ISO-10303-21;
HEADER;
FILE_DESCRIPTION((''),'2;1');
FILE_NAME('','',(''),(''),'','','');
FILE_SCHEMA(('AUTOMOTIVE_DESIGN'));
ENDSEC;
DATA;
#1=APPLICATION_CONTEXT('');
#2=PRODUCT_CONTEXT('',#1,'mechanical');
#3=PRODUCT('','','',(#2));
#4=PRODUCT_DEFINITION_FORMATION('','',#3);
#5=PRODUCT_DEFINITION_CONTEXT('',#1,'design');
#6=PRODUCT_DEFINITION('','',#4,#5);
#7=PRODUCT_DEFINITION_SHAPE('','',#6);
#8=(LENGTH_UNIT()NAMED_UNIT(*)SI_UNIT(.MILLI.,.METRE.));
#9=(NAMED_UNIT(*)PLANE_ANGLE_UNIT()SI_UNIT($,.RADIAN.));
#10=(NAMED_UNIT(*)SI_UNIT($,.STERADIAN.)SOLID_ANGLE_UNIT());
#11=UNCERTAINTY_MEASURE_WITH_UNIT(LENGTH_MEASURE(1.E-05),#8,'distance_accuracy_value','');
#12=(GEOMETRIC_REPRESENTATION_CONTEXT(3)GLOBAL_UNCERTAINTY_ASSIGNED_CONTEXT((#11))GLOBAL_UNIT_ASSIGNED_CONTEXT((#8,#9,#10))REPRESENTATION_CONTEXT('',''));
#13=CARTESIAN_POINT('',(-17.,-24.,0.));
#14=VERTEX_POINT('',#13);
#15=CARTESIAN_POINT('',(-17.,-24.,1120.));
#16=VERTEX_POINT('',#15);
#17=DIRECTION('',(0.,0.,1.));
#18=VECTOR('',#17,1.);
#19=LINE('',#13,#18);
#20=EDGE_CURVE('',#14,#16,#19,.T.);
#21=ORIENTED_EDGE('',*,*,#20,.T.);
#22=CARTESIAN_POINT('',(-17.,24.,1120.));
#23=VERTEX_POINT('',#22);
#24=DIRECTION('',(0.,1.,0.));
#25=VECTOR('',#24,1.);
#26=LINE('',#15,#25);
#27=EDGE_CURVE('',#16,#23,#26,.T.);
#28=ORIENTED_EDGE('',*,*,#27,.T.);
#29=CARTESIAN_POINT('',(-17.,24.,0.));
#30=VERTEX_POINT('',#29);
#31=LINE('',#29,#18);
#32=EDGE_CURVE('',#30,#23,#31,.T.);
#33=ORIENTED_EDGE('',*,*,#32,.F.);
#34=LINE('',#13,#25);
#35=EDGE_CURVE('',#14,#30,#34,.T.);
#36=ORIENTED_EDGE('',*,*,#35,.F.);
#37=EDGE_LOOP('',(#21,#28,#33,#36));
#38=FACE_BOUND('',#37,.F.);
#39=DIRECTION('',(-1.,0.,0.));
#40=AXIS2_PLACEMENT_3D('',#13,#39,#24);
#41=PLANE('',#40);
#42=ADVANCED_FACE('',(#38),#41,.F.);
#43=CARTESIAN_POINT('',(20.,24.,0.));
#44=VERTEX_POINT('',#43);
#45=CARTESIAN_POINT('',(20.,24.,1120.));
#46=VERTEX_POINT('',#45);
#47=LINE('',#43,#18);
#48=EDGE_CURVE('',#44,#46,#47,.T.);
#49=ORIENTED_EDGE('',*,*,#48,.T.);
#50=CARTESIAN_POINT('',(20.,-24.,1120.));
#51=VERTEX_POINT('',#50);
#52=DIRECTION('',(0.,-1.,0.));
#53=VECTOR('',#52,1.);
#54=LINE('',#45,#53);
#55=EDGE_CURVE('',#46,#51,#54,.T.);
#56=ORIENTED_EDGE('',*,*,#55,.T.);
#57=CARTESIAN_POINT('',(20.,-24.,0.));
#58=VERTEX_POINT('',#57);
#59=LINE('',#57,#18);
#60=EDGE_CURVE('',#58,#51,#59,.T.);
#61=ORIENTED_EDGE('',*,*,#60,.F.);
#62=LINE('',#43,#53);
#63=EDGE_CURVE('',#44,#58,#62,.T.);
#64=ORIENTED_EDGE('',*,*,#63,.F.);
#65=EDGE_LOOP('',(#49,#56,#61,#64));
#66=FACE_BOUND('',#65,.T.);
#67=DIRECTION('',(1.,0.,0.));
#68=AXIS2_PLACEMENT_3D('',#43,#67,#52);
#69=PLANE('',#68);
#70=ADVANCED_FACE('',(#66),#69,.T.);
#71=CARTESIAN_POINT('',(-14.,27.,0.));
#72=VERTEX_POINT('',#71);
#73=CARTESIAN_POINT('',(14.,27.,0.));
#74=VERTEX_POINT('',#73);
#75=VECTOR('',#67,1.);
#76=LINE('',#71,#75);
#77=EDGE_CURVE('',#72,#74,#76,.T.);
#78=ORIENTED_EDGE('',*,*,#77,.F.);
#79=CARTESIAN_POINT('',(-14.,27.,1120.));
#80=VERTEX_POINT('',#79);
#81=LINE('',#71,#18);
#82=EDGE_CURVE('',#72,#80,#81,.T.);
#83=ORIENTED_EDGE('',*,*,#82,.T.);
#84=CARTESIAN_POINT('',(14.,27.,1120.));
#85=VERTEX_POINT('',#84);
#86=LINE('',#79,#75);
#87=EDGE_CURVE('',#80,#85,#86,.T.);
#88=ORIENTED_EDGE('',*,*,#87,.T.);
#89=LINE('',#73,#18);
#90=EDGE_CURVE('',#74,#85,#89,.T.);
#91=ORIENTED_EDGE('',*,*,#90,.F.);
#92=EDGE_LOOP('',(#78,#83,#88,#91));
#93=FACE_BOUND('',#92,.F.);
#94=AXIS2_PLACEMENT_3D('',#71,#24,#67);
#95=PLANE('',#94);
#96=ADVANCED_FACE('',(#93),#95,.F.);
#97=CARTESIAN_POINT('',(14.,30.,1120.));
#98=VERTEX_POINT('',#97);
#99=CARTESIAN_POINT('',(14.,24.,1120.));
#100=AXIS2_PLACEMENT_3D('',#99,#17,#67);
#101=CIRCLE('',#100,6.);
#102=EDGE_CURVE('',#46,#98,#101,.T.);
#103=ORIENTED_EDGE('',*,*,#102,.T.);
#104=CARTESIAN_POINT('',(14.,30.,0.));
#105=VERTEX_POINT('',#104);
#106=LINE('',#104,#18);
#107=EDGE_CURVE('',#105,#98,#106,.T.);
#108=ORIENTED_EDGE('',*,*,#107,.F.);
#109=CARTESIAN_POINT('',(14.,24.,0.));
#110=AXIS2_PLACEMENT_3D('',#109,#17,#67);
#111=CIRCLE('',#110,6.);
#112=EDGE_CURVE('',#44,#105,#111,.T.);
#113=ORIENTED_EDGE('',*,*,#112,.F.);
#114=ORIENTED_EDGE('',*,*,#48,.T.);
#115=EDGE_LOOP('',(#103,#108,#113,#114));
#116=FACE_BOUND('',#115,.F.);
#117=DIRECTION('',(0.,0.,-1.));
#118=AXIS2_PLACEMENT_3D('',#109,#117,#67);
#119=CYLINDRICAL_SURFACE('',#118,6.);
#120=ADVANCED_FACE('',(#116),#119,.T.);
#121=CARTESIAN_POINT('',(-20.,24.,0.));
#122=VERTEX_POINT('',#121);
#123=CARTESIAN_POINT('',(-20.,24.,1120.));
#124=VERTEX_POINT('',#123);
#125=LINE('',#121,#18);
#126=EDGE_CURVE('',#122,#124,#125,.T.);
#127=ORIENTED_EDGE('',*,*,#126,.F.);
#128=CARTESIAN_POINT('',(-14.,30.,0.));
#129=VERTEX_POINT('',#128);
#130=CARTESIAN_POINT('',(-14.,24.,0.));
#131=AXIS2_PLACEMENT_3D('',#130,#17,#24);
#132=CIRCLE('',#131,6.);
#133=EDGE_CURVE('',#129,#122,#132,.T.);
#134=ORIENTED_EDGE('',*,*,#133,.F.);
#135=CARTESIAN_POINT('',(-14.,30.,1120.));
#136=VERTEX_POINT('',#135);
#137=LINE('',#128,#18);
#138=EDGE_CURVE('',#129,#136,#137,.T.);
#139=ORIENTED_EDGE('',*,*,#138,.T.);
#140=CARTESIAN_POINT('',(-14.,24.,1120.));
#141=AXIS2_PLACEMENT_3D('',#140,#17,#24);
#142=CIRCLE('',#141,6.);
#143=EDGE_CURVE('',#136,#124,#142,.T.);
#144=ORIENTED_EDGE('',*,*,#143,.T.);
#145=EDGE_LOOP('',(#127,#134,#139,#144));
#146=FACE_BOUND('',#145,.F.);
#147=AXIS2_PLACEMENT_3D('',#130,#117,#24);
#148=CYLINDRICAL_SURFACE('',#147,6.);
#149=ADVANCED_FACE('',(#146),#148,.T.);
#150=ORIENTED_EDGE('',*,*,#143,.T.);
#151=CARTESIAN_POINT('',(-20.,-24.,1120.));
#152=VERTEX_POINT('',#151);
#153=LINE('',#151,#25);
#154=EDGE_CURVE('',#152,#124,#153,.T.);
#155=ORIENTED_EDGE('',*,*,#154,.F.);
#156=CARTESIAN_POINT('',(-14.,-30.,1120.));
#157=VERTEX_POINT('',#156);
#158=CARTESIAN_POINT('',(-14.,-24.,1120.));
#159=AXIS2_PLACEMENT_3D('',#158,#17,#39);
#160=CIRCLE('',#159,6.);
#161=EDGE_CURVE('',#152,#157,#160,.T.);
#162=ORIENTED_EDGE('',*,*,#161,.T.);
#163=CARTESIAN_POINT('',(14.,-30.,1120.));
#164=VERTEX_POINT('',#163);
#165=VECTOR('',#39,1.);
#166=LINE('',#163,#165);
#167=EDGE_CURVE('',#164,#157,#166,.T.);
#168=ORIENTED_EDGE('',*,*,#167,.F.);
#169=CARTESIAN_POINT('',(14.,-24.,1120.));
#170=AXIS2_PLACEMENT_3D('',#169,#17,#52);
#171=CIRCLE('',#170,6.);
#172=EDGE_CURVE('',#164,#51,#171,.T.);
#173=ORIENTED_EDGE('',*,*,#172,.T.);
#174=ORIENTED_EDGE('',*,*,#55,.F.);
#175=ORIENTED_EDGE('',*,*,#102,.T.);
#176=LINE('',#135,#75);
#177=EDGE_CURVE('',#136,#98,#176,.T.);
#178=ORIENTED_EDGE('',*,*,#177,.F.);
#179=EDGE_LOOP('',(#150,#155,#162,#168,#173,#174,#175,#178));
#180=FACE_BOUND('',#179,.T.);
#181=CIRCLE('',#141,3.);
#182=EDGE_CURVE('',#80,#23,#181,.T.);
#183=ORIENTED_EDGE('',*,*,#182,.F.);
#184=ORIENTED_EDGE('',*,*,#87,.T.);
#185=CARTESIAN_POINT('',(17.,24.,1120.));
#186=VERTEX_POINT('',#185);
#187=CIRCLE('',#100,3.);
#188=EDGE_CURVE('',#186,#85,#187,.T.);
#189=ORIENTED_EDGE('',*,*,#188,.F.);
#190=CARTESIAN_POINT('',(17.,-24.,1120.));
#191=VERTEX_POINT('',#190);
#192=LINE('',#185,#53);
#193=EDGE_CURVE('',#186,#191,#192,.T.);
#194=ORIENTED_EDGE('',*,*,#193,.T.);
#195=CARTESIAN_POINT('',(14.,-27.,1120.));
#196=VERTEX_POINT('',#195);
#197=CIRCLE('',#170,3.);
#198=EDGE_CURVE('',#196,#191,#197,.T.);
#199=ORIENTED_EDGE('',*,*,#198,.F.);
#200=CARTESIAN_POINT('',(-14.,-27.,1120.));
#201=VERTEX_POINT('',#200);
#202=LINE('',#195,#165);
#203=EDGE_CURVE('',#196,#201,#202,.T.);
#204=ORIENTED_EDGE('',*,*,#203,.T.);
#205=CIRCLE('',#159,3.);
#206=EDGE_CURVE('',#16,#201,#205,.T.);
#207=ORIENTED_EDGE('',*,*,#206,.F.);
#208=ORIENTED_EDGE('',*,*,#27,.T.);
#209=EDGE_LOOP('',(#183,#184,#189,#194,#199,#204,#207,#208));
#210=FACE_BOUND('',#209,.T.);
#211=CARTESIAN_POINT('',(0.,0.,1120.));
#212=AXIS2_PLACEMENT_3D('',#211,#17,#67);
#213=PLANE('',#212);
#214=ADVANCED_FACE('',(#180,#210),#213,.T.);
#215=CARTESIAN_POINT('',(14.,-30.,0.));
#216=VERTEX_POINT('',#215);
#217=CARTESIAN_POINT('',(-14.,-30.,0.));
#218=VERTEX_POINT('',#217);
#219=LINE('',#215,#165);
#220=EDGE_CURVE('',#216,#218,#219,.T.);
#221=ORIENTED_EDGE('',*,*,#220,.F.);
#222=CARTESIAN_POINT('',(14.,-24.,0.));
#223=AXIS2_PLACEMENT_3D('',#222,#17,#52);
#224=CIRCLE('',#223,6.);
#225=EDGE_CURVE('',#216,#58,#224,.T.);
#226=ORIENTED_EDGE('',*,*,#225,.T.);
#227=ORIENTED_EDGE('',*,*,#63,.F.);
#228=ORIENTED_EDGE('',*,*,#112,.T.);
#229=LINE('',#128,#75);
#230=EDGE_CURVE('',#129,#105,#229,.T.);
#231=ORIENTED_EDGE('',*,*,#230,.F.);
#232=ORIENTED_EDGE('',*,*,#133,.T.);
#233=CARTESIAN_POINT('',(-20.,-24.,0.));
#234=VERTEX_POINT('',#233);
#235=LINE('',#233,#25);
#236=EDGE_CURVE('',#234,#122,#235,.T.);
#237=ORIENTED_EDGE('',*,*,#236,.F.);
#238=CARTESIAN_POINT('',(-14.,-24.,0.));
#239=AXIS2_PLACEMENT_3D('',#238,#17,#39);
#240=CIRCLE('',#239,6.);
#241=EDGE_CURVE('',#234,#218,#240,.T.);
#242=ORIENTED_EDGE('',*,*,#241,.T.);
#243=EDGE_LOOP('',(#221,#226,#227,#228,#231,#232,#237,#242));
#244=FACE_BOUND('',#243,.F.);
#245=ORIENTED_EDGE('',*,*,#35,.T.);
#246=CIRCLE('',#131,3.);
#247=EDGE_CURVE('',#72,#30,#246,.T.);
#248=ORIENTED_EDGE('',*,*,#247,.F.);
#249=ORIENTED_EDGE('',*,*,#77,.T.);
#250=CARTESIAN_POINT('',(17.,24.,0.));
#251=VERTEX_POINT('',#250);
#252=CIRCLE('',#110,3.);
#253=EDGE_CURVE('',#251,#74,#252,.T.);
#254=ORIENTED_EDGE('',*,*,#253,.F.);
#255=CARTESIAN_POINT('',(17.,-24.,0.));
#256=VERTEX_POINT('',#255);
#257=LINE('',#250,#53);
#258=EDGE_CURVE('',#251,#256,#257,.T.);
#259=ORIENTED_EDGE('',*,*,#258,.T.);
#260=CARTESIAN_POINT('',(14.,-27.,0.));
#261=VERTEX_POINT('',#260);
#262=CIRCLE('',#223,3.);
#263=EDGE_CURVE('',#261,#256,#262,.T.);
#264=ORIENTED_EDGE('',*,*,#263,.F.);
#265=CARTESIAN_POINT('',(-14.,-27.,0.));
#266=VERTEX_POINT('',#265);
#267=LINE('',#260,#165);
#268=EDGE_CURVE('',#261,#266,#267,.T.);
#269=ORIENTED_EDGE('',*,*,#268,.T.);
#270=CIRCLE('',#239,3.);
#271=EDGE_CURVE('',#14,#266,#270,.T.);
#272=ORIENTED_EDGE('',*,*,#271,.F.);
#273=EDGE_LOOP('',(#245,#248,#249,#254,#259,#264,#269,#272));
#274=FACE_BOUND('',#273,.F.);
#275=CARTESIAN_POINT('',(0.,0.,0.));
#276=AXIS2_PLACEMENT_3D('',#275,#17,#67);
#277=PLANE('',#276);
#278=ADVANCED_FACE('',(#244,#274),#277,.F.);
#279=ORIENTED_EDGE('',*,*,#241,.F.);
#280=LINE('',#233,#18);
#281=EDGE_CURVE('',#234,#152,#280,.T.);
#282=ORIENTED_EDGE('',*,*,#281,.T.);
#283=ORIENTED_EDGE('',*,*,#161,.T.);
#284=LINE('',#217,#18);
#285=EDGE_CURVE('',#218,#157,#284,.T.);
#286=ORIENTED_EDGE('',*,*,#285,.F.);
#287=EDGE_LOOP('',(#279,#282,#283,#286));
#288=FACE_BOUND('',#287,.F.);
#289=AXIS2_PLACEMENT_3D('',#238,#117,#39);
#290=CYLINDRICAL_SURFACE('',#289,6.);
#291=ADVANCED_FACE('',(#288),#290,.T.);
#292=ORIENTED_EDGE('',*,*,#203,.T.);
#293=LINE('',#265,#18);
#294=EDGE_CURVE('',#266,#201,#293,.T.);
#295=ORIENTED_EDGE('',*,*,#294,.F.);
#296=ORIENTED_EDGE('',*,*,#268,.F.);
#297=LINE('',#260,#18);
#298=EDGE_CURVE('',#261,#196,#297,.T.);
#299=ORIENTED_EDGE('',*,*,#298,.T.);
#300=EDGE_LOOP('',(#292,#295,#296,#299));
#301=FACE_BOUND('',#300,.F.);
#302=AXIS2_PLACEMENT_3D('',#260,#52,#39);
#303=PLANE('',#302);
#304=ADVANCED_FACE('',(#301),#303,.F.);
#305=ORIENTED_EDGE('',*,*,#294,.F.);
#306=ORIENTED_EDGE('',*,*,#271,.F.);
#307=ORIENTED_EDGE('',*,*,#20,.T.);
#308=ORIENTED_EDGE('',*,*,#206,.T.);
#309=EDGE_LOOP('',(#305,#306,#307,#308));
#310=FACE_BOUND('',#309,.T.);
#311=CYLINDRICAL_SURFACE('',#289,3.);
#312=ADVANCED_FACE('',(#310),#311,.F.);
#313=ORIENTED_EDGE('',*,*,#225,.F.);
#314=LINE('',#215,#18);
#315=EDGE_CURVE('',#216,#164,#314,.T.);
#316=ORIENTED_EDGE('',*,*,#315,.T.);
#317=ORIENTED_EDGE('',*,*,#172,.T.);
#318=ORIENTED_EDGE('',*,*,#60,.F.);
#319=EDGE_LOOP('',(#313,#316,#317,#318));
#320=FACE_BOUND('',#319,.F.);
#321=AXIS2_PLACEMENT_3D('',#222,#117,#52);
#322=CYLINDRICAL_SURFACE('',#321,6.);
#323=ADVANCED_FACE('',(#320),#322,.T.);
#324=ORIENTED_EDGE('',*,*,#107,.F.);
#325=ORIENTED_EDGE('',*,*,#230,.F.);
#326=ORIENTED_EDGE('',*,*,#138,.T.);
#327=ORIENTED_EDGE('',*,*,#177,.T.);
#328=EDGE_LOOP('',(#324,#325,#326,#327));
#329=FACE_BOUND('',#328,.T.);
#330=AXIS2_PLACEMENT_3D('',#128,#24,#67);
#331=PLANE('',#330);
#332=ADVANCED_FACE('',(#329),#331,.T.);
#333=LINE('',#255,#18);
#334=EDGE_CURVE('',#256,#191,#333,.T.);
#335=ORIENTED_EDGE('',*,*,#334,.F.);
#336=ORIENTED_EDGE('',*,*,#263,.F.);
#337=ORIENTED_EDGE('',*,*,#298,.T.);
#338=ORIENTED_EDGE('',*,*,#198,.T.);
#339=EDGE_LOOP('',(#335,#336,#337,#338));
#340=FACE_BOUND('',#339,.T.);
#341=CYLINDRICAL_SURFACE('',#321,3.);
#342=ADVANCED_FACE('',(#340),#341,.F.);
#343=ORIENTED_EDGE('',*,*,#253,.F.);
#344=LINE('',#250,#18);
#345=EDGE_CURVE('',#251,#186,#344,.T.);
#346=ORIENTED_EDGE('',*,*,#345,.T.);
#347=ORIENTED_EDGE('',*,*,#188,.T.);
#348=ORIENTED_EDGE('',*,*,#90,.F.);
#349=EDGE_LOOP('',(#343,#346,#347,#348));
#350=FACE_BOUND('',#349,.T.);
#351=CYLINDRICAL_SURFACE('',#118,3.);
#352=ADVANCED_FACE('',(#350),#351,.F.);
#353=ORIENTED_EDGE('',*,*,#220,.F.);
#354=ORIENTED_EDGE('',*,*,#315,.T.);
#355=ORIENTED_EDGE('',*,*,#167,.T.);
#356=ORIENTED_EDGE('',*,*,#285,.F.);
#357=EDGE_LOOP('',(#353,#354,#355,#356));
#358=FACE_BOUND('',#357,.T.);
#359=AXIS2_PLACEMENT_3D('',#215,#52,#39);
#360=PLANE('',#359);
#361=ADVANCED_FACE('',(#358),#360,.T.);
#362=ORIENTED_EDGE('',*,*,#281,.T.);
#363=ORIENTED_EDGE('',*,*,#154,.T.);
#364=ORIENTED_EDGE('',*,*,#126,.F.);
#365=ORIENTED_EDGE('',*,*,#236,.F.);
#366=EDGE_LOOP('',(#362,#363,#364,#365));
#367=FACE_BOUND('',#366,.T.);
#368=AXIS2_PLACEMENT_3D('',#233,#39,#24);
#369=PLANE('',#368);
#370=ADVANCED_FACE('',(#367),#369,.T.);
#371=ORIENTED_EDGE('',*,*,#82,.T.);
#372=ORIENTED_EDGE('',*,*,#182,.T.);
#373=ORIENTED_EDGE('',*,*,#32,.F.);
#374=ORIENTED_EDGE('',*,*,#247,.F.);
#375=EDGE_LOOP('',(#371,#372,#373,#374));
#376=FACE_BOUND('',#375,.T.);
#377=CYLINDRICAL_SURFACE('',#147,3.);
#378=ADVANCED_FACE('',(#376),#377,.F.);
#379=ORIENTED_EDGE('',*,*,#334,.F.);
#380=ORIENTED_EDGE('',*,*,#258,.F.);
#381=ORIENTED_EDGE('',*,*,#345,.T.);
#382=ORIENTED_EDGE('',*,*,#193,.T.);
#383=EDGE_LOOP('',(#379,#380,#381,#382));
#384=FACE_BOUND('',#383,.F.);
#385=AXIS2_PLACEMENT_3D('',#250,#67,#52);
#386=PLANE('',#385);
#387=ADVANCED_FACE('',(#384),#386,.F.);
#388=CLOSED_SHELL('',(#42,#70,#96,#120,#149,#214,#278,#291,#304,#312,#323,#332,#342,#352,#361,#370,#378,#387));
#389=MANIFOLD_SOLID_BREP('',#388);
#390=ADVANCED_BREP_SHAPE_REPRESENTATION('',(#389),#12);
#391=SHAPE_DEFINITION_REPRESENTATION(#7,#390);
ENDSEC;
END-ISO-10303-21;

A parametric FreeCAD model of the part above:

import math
import FreeCAD as App
import Part
import Sketcher

V = App.Vector
Q = App.Units.Quantity

doc = App.newDocument("Part")
body = doc.addObject("PartDesign::Body", "Body")

# Sketch on XY plane
sketch1 = body.newObject("Sketcher::SketchObject", "Sketch")
sketch1.AttachmentSupport = (doc.getObject("XY_Plane"), [""])
sketch1.MapMode = "FlatFace"
sketch1.addGeometry([
    Part.LineSegment(V(-20, 24, 0), V(-20, -24, 0)),  # 0
    Part.ArcOfCircle(Part.Circle(V(-14, -24, 0), V(0, 0, 1), 6), math.radians(180), math.radians(270)),  # 1
    Part.LineSegment(V(-14, -30, 0), V(14, -30, 0)),  # 2
    Part.ArcOfCircle(Part.Circle(V(14, -24, 0), V(0, 0, 1), 6), math.radians(-90), math.radians(0)),  # 3
    Part.LineSegment(V(20, -24, 0), V(20, 24, 0)),  # 4
    Part.ArcOfCircle(Part.Circle(V(14, 24, 0), V(0, 0, 1), 6), math.radians(0), math.radians(90)),  # 5
    Part.LineSegment(V(14, 30, 0), V(-14, 30, 0)),  # 6
    Part.ArcOfCircle(Part.Circle(V(-14, 24, 0), V(0, 0, 1), 6), math.radians(90), math.radians(180)),  # 7
    Part.ArcOfCircle(Part.Circle(V(-14, 24, 0), V(0, 0, 1), 3), math.radians(90), math.radians(180)),  # 8
    Part.LineSegment(V(-14, 27, 0), V(14, 27, 0)),  # 9
    Part.ArcOfCircle(Part.Circle(V(14, 24, 0), V(0, 0, 1), 3), math.radians(0), math.radians(90)),  # 10
    Part.LineSegment(V(17, 24, 0), V(17, -24, 0)),  # 11
    Part.ArcOfCircle(Part.Circle(V(14, -24, 0), V(0, 0, 1), 3), math.radians(-90), math.radians(0)),  # 12
    Part.LineSegment(V(14, -27, 0), V(-14, -27, 0)),  # 13
    Part.ArcOfCircle(Part.Circle(V(-14, -24, 0), V(0, 0, 1), 3), math.radians(180), math.radians(270)),  # 14
    Part.LineSegment(V(-17, -24, 0), V(-17, 24, 0)),  # 15
], False)
sketch1.addConstraint([
    Sketcher.Constraint("Tangent", 0, 2, 1, 1),
    Sketcher.Constraint("Tangent", 1, 2, 2, 1),
    Sketcher.Constraint("Tangent", 2, 2, 3, 1),
    Sketcher.Constraint("Tangent", 3, 2, 4, 1),
    Sketcher.Constraint("Tangent", 4, 2, 5, 1),
    Sketcher.Constraint("Tangent", 5, 2, 6, 1),
    Sketcher.Constraint("Tangent", 6, 2, 7, 1),
    Sketcher.Constraint("Tangent", 7, 2, 0, 1),
    Sketcher.Constraint("Tangent", 8, 1, 9, 1),
    Sketcher.Constraint("Tangent", 9, 2, 10, 2),
    Sketcher.Constraint("Tangent", 10, 1, 11, 1),
    Sketcher.Constraint("Tangent", 11, 2, 12, 2),
    Sketcher.Constraint("Tangent", 12, 1, 13, 1),
    Sketcher.Constraint("Tangent", 13, 2, 14, 2),
    Sketcher.Constraint("Tangent", 14, 1, 15, 1),
    Sketcher.Constraint("Tangent", 15, 2, 8, 2),
    Sketcher.Constraint("Vertical", 0),
    Sketcher.Constraint("Horizontal", 2),
    Sketcher.Constraint("Vertical", 4),
    Sketcher.Constraint("Horizontal", 6),
    Sketcher.Constraint("Horizontal", 9),
    Sketcher.Constraint("Vertical", 11),
    Sketcher.Constraint("Horizontal", 13),
    Sketcher.Constraint("Vertical", 15),
    Sketcher.Constraint("Coincident", 8, 3, 7, 3),
    Sketcher.Constraint("Coincident", 10, 3, 5, 3),
    Sketcher.Constraint("Coincident", 12, 3, 3, 3),
    Sketcher.Constraint("Equal", 1, 3),
    Sketcher.Constraint("Equal", 3, 5),
    Sketcher.Constraint("Equal", 5, 7),
    Sketcher.Constraint("Equal", 12, 14),
    Sketcher.Constraint("Symmetric", 1, 3, 5, 3, -1, 1),
    Sketcher.Constraint("Radius", 1, Q("6 mm")),
    Sketcher.Constraint("Radius", 8, Q("3 mm")),
    Sketcher.Constraint("DistanceX", 0, 2, -1, 1, Q("20 mm")),
    Sketcher.Constraint("DistanceY", 1, 2, -1, 1, Q("30 mm")),
])
pad1 = body.newObject("PartDesign::Pad", "Pad")
pad1.Profile = sketch1
pad1.Length = 1120

doc.recompute()
